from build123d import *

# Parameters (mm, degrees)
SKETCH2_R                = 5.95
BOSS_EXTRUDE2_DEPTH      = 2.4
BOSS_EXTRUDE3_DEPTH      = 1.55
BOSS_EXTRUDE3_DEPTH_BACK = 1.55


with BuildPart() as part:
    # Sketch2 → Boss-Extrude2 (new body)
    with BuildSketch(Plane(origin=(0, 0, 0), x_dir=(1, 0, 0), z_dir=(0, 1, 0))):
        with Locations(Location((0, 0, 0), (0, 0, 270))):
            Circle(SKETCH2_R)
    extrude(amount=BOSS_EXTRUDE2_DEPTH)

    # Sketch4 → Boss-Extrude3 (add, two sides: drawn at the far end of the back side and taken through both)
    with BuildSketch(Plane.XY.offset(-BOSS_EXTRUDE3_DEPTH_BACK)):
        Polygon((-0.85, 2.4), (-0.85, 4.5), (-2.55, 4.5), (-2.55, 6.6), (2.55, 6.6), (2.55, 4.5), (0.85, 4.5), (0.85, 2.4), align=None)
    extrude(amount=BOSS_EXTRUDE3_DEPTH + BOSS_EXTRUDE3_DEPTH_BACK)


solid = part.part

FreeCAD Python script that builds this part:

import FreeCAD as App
import Part
import Sketcher
from FreeCAD import Vector
Q = App.Units.Quantity

doc = App.newDocument("Part")
params = doc.addObject("Spreadsheet::Sheet", "Params")
for row, (alias, value) in enumerate([
    ("sketch1_diameter", "11.9 mm"),
    ("pad1_length", "2.4 mm"),
    ("sketch2_width", "1.7 mm"),
    ("sketch2_height", "2.1 mm"),
    ("pad2_length", "1.55 mm"),
    ("pad2_length2", "1.55 mm"),
], start=1):
    params.set(f"A{row}", alias)
    params.set(f"B{row}", "=" + value)
    params.setAlias(f"B{row}", alias)

body = doc.addObject("PartDesign::Body", "Body")

# Sketch on XZ plane
sketch1 = body.newObject("Sketcher::SketchObject", "Sketch")
sketch1.AttachmentSupport = (doc.getObject("XZ_Plane"), [""])
sketch1.MapMode = "FlatFace"
sketch1.addGeometry(Part.Circle(Vector(0, 0, 0), Vector(0, 0, 1), 6), False)
sketch1.addConstraint(Sketcher.Constraint("Coincident", 0, 3, -1, 1))
sketch1.addConstraint(Sketcher.Constraint("Diameter", 0, Q("11.9 mm")))
sketch1.setExpression("Constraints[1]", "Params.sketch1_diameter")
pad1 = body.newObject("PartDesign::Pad", "Pad")
pad1.Profile = sketch1
pad1.setExpression("Length", "Params.pad1_length")
pad1.Reversed = True

# Sketch on XY plane
sketch2 = body.newObject("Sketcher::SketchObject", "Sketch001")
sketch2.AttachmentSupport = (doc.getObject("XY_Plane"), [""])
sketch2.MapMode = "FlatFace"
sketch2.addGeometry(Part.LineSegment(Vector(-0.8, 4.5, 0), Vector(-0.8, 2.4, 0)), False)
sketch2.addGeometry(Part.LineSegment(Vector(-0.8, 2.4, 0), Vector(0.8, 2.4, 0)), False)
sketch2.addGeometry(Part.LineSegment(Vector(0.8, 2.4, 0), Vector(0.8, 4.5, 0)), False)
sketch2.addGeometry(Part.LineSegment(Vector(0.8, 4.5, 0), Vector(2.5, 4.5, 0)), False)
sketch2.addGeometry(Part.LineSegment(Vector(2.5, 4.5, 0), Vector(2.5, 6.6, 0)), False)
sketch2.addGeometry(Part.LineSegment(Vector(2.5, 6.6, 0), Vector(-2.5, 6.6, 0)), False)
sketch2.addGeometry(Part.LineSegment(Vector(-2.5, 6.6, 0), Vector(-2.5, 4.5, 0)), False)
sketch2.addGeometry(Part.LineSegment(Vector(-2.5, 4.5, 0), Vector(-0.8, 4.5, 0)), False)
sketch2.addConstraint(Sketcher.Constraint("Coincident", 0, 2, 1, 1))
sketch2.addConstraint(Sketcher.Constraint("Coincident", 1, 2, 2, 1))
sketch2.addConstraint(Sketcher.Constraint("Coincident", 2, 2, 3, 1))
sketch2.addConstraint(Sketcher.Constraint("Coincident", 3, 2, 4, 1))
sketch2.addConstraint(Sketcher.Constraint("Coincident", 4, 2, 5, 1))
sketch2.addConstraint(Sketcher.Constraint("Coincident", 5, 2, 6, 1))
sketch2.addConstraint(Sketcher.Constraint("Coincident", 6, 2, 7, 1))
sketch2.addConstraint(Sketcher.Constraint("Coincident", 7, 2, 0, 1))
sketch2.addConstraint(Sketcher.Constraint("Vertical", 0))
sketch2.addConstraint(Sketcher.Constraint("Horizontal", 1))
sketch2.addConstraint(Sketcher.Constraint("Vertical", 2))
sketch2.addConstraint(Sketcher.Constraint("Horizontal", 3))
sketch2.addConstraint(Sketcher.Constraint("Vertical", 4))
sketch2.addConstraint(Sketcher.Constraint("Horizontal", 5))
sketch2.addConstraint(Sketcher.Constraint("Vertical", 6))
sketch2.addConstraint(Sketcher.Constraint("Horizontal", 7))
sketch2.addConstraint(Sketcher.Constraint("Symmetric", 3, 2, 6, 2, -2))
sketch2.addConstraint(Sketcher.Constraint("Equal", 1, 3))
sketch2.addConstraint(Sketcher.Constraint("Equal", 3, 7))
sketch2.addConstraint(Sketcher.Constraint("Equal", 2, 4))
sketch2.addConstraint(Sketcher.Constraint("DistanceX", 1, 1, 1, 2, Q("1.7 mm")))
sketch2.addConstraint(Sketcher.Constraint("DistanceY", 0, 2, 0, 1, Q("2.1 mm")))
sketch2.addConstraint(Sketcher.Constraint("DistanceY", -1, 1, 0, 2, Q("2.4 mm")))
sketch2.setExpression("Constraints[20]", "Params.sketch2_width")
sketch2.setExpression("Constraints[21]", "Params.sketch2_height")
pad2 = body.newObject("PartDesign::Pad", "Pad001")
pad2.Profile = sketch2
pad2.Type = "TwoLengths"
pad2.setExpression("Length", "Params.pad2_length")
pad2.setExpression("Length2", "Params.pad2_length2")

doc.recompute()
